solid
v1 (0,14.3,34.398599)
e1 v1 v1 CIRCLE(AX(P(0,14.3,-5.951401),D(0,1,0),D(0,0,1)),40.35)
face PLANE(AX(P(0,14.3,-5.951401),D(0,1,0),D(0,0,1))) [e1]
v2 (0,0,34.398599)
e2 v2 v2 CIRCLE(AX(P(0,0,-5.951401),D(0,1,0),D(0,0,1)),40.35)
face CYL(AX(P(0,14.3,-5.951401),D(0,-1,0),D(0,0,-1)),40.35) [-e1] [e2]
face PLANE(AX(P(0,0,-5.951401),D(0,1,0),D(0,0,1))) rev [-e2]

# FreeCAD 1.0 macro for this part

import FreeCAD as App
import Part
import Sketcher
from FreeCAD import Vector
Q = App.Units.Quantity

doc = App.newDocument("Part")
params = doc.addObject("Spreadsheet::Sheet", "Params")
for row, (alias, value) in enumerate([
    ("sketch1_diameter", "80.7 mm"),
    ("pad1_length", "14.3 mm"),
], start=1):
    params.set(f"A{row}", alias)
    params.set(f"B{row}", "=" + value)
    params.setAlias(f"B{row}", alias)

body = doc.addObject("PartDesign::Body", "Body")

# Sketch on XZ plane
sketch1 = doc.addObject("Sketcher::SketchObject", "Sketch")
body.addObject(sketch1)
sketch1.AttachmentSupport = (doc.XZ_Plane, [""])
sketch1.MapMode = "FlatFace"
sketch1.addGeometry(Part.Circle(Vector(0, -6, 0), Vector(0, 0, 1), 40), False)
sketch1.addConstraint(Sketcher.Constraint("PointOnObject", 0, 3, -2))
sketch1.addConstraint(Sketcher.Constraint("Diameter", 0, Q("80.7 mm")))
sketch1.addConstraint(Sketcher.Constraint("DistanceY", 0, 3, -1, 1, Q("5.951401 mm")))
sketch1.setExpression("Constraints[1]", "Params.sketch1_diameter")
pad1 = doc.addObject("PartDesign::Pad", "Pad")
body.addObject(pad1)
pad1.Profile = sketch1
pad1.setExpression("Length", "Params.pad1_length")
pad1.Reversed = True

doc.recompute()
